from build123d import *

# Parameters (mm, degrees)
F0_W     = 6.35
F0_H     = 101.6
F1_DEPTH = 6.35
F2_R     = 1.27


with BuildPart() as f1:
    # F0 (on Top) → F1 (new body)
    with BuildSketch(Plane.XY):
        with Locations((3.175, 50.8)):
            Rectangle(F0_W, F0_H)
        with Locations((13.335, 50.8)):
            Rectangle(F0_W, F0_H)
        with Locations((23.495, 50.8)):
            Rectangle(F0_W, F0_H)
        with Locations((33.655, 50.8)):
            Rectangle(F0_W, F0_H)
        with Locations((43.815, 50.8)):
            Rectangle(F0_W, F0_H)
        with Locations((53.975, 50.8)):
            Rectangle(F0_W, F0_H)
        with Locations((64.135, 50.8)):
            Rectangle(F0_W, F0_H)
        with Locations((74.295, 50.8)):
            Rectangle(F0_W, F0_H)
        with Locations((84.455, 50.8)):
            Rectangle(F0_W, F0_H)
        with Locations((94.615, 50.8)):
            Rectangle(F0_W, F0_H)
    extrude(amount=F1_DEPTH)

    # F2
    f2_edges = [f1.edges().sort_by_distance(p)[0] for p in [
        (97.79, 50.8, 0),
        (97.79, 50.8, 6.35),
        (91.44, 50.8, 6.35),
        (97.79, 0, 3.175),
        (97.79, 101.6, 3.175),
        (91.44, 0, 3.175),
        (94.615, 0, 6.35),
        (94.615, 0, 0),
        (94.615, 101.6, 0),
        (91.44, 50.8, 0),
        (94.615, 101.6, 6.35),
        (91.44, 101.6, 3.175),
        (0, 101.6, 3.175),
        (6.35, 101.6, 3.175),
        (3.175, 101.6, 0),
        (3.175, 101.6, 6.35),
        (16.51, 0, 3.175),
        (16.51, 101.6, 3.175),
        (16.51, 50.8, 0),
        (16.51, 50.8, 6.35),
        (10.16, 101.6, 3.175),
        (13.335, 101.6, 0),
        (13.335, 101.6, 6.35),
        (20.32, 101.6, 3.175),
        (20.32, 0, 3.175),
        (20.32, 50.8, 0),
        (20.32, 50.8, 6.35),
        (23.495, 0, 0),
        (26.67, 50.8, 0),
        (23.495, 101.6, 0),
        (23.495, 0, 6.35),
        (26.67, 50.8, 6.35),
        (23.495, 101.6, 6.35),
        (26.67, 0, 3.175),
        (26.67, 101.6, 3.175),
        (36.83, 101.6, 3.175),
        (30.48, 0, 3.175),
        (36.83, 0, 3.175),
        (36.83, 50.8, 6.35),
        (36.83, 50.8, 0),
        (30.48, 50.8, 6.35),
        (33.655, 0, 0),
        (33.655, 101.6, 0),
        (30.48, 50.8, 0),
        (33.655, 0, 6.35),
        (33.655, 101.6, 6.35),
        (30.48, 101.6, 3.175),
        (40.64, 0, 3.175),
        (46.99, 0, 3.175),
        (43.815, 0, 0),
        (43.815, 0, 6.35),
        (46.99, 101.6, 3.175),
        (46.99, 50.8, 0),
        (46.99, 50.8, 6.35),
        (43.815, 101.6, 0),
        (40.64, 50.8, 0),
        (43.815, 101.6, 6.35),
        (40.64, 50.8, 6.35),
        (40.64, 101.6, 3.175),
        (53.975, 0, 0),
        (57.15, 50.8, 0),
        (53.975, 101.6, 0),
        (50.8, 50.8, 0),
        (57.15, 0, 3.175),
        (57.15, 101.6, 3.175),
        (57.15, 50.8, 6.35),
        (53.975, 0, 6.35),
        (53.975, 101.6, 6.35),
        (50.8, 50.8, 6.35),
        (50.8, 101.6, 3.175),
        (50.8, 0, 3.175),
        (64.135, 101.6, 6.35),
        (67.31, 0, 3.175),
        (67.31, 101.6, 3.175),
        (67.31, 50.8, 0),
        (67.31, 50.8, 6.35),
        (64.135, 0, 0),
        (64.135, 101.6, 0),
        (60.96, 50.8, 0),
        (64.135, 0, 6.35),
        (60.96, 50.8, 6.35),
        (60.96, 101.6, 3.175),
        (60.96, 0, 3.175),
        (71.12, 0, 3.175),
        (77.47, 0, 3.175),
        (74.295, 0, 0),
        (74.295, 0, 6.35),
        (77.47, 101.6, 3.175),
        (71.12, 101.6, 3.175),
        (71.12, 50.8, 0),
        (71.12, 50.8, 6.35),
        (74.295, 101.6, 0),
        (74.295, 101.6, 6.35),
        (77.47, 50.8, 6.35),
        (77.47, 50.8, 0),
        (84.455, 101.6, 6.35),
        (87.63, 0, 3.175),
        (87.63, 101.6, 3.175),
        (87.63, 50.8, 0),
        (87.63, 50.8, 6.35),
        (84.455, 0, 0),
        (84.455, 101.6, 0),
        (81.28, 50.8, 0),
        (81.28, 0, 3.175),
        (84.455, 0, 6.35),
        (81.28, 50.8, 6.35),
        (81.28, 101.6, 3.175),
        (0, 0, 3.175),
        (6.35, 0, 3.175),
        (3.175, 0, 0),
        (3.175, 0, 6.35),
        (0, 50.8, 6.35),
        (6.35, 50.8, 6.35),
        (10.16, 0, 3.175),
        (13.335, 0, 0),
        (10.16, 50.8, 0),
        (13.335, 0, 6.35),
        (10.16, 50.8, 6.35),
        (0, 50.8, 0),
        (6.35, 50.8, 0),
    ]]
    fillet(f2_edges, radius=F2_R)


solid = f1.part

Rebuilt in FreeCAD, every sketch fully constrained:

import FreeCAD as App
import Part
import Sketcher
Q = App.Units.Quantity

doc = App.newDocument("Part")
body = doc.addObject("PartDesign::Body", "Body")
body.AllowCompound = True

sketch1 = body.newObject("Sketcher::SketchObject", "Sketch")
sketch1.AttachmentSupport = (doc.getObject("XY_Plane"), [""])
sketch1.MapMode = "FlatFace"
sketch1.addGeometry([
    Part.LineSegment(App.Vector(0, 101.6, 0), App.Vector(0, 0, 0)),
    Part.LineSegment(App.Vector(0, 0, 0), App.Vector(6.35, 0, 0)),
    Part.LineSegment(App.Vector(6.35, 0, 0), App.Vector(6.35, 101.6, 0)),
    Part.LineSegment(App.Vector(6.35, 101.6, 0), App.Vector(0, 101.6, 0)),
    Part.LineSegment(App.Vector(10.16, 101.6, 0), App.Vector(10.16, 0, 0)),
    Part.LineSegment(App.Vector(10.16, 0, 0), App.Vector(16.51, 0, 0)),
    Part.LineSegment(App.Vector(16.51, 0, 0), App.Vector(16.51, 101.6, 0)),
    Part.LineSegment(App.Vector(16.51, 101.6, 0), App.Vector(10.16, 101.6, 0)),
    Part.LineSegment(App.Vector(20.32, 101.6, 0), App.Vector(20.32, 0, 0)),
    Part.LineSegment(App.Vector(20.32, 0, 0), App.Vector(26.67, 0, 0)),
    Part.LineSegment(App.Vector(26.67, 0, 0), App.Vector(26.67, 101.6, 0)),
    Part.LineSegment(App.Vector(26.67, 101.6, 0), App.Vector(20.32, 101.6, 0)),
    Part.LineSegment(App.Vector(30.48, 101.6, 0), App.Vector(30.48, 0, 0)),
    Part.LineSegment(App.Vector(30.48, 0, 0), App.Vector(36.83, 0, 0)),
    Part.LineSegment(App.Vector(36.83, 0, 0), App.Vector(36.83, 101.6, 0)),
    Part.LineSegment(App.Vector(36.83, 101.6, 0), App.Vector(30.48, 101.6, 0)),
    Part.LineSegment(App.Vector(40.64, 101.6, 0), App.Vector(40.64, 0, 0)),
    Part.LineSegment(App.Vector(40.64, 0, 0), App.Vector(46.99, 0, 0)),
    Part.LineSegment(App.Vector(46.99, 0, 0), App.Vector(46.99, 101.6, 0)),
    Part.LineSegment(App.Vector(46.99, 101.6, 0), App.Vector(40.64, 101.6, 0)),
    Part.LineSegment(App.Vector(50.8, 101.6, 0), App.Vector(50.8, 0, 0)),
    Part.LineSegment(App.Vector(50.8, 0, 0), App.Vector(57.15, 0, 0)),
    Part.LineSegment(App.Vector(57.15, 0, 0), App.Vector(57.15, 101.6, 0)),
    Part.LineSegment(App.Vector(57.15, 101.6, 0), App.Vector(50.8, 101.6, 0)),
    Part.LineSegment(App.Vector(60.96, 101.6, 0), App.Vector(60.96, 0, 0)),
    Part.LineSegment(App.Vector(60.96, 0, 0), App.Vector(67.31, 0, 0)),
    Part.LineSegment(App.Vector(67.31, 0, 0), App.Vector(67.31, 101.6, 0)),
    Part.LineSegment(App.Vector(67.31, 101.6, 0), App.Vector(60.96, 101.6, 0)),
    Part.LineSegment(App.Vector(71.12, 101.6, 0), App.Vector(71.12, 0, 0)),
    Part.LineSegment(App.Vector(71.12, 0, 0), App.Vector(77.47, 0, 0)),
    Part.LineSegment(App.Vector(77.47, 0, 0), App.Vector(77.47, 101.6, 0)),
    Part.LineSegment(App.Vector(77.47, 101.6, 0), App.Vector(71.12, 101.6, 0)),
    Part.LineSegment(App.Vector(81.28, 101.6, 0), App.Vector(81.28, 0, 0)),
    Part.LineSegment(App.Vector(81.28, 0, 0), App.Vector(87.63, 0, 0)),
    Part.LineSegment(App.Vector(87.63, 0, 0), App.Vector(87.63, 101.6, 0)),
    Part.LineSegment(App.Vector(87.63, 101.6, 0), App.Vector(81.28, 101.6, 0)),
    Part.LineSegment(App.Vector(91.44, 101.6, 0), App.Vector(91.44, 0, 0)),
    Part.LineSegment(App.Vector(91.44, 0, 0), App.Vector(97.79, 0, 0)),
    Part.LineSegment(App.Vector(97.79, 0, 0), App.Vector(97.79, 101.6, 0)),
    Part.LineSegment(App.Vector(97.79, 101.6, 0), App.Vector(91.44, 101.6, 0)),
], False)
sketch1.addConstraint([
    Sketcher.Constraint("Coincident", 0, 2, 1, 1),
    Sketcher.Constraint("Coincident", 1, 2, 2, 1),
    Sketcher.Constraint("Coincident", 2, 2, 3, 1),
    Sketcher.Constraint("Coincident", 3, 2, 0, 1),
    Sketcher.Constraint("Coincident", 4, 2, 5, 1),
    Sketcher.Constraint("Coincident", 5, 2, 6, 1),
    Sketcher.Constraint("Coincident", 6, 2, 7, 1),
    Sketcher.Constraint("Coincident", 7, 2, 4, 1),
    Sketcher.Constraint("Coincident", 8, 2, 9, 1),
    Sketcher.Constraint("Coincident", 9, 2, 10, 1),
    Sketcher.Constraint("Coincident", 10, 2, 11, 1),
    Sketcher.Constraint("Coincident", 11, 2, 8, 1),
    Sketcher.Constraint("Coincident", 12, 2, 13, 1),
    Sketcher.Constraint("Coincident", 13, 2, 14, 1),
    Sketcher.Constraint("Coincident", 14, 2, 15, 1),
    Sketcher.Constraint("Coincident", 15, 2, 12, 1),
    Sketcher.Constraint("Coincident", 16, 2, 17, 1),
    Sketcher.Constraint("Coincident", 17, 2, 18, 1),
    Sketcher.Constraint("Coincident", 18, 2, 19, 1),
    Sketcher.Constraint("Coincident", 19, 2, 16, 1),
    Sketcher.Constraint("Coincident", 20, 2, 21, 1),
    Sketcher.Constraint("Coincident", 21, 2, 22, 1),
    Sketcher.Constraint("Coincident", 22, 2, 23, 1),
    Sketcher.Constraint("Coincident", 23, 2, 20, 1),
    Sketcher.Constraint("Coincident", 24, 2, 25, 1),
    Sketcher.Constraint("Coincident", 25, 2, 26, 1),
    Sketcher.Constraint("Coincident", 26, 2, 27, 1),
    Sketcher.Constraint("Coincident", 27, 2, 24, 1),
    Sketcher.Constraint("Coincident", 28, 2, 29, 1),
    Sketcher.Constraint("Coincident", 29, 2, 30, 1),
    Sketcher.Constraint("Coincident", 30, 2, 31, 1),
    Sketcher.Constraint("Coincident", 31, 2, 28, 1),
    Sketcher.Constraint("Coincident", 32, 2, 33, 1),
    Sketcher.Constraint("Coincident", 33, 2, 34, 1),
    Sketcher.Constraint("Coincident", 34, 2, 35, 1),
    Sketcher.Constraint("Coincident", 35, 2, 32, 1),
    Sketcher.Constraint("Coincident", 36, 2, 37, 1),
    Sketcher.Constraint("Coincident", 37, 2, 38, 1),
    Sketcher.Constraint("Coincident", 38, 2, 39, 1),
    Sketcher.Constraint("Coincident", 39, 2, 36, 1),
    Sketcher.Constraint("Vertical", 0),
    Sketcher.Constraint("Horizontal", 1),
    Sketcher.Constraint("Vertical", 2),
    Sketcher.Constraint("Horizontal", 3),
    Sketcher.Constraint("Vertical", 4),
    Sketcher.Constraint("Horizontal", 5),
    Sketcher.Constraint("Vertical", 6),
    Sketcher.Constraint("Horizontal", 7),
    Sketcher.Constraint("Vertical", 8),
    Sketcher.Constraint("Horizontal", 9),
    Sketcher.Constraint("Vertical", 10),
    Sketcher.Constraint("Horizontal", 11),
    Sketcher.Constraint("Vertical", 12),
    Sketcher.Constraint("Horizontal", 13),
    Sketcher.Constraint("Vertical", 14),
    Sketcher.Constraint("Horizontal", 15),
    Sketcher.Constraint("Vertical", 16),
    Sketcher.Constraint("Horizontal", 17),
    Sketcher.Constraint("Vertical", 18),
    Sketcher.Constraint("Horizontal", 19),
    Sketcher.Constraint("Vertical", 20),
    Sketcher.Constraint("Horizontal", 21),
    Sketcher.Constraint("Vertical", 22),
    Sketcher.Constraint("Horizontal", 23),
    Sketcher.Constraint("Vertical", 24),
    Sketcher.Constraint("Horizontal", 25),
    Sketcher.Constraint("Vertical", 26),
    Sketcher.Constraint("Horizontal", 27),
    Sketcher.Constraint("Vertical", 28),
    Sketcher.Constraint("Horizontal", 29),
    Sketcher.Constraint("Vertical", 30),
    Sketcher.Constraint("Horizontal", 31),
    Sketcher.Constraint("Vertical", 32),
    Sketcher.Constraint("Horizontal", 33),
    Sketcher.Constraint("Vertical", 34),
    Sketcher.Constraint("Horizontal", 35),
    Sketcher.Constraint("Vertical", 36),
    Sketcher.Constraint("Horizontal", 37),
    Sketcher.Constraint("Vertical", 38),
    Sketcher.Constraint("Horizontal", 39),
    Sketcher.Constraint("Coincident", 0, 2, -1, 1),
    Sketcher.Constraint("PointOnObject", 4, 2, -1),
    Sketcher.Constraint("PointOnObject", 8, 2, -1),
    Sketcher.Constraint("PointOnObject", 12, 2, -1),
    Sketcher.Constraint("PointOnObject", 16, 2, -1),
    Sketcher.Constraint("PointOnObject", 20, 2, -1),
    Sketcher.Constraint("PointOnObject", 24, 2, -1),
    Sketcher.Constraint("PointOnObject", 28, 2, -1),
    Sketcher.Constraint("PointOnObject", 32, 2, -1),
    Sketcher.Constraint("PointOnObject", 36, 2, -1),
    Sketcher.Constraint("Horizontal", 3, 2, 6, 2),
    Sketcher.Constraint("Horizontal", 7, 2, 10, 2),
    Sketcher.Constraint("Horizontal", 11, 2, 14, 2),
    Sketcher.Constraint("Horizontal", 15, 2, 18, 2),
    Sketcher.Constraint("Horizontal", 19, 2, 22, 2),
    Sketcher.Constraint("Horizontal", 23, 2, 26, 2),
    Sketcher.Constraint("Horizontal", 27, 2, 30, 2),
    Sketcher.Constraint("Horizontal", 31, 2, 34, 2),
    Sketcher.Constraint("Horizontal", 35, 2, 38, 2),
    Sketcher.Constraint("Equal", 3, 5),
    Sketcher.Constraint("Equal", 7, 9),
    Sketcher.Constraint("Equal", 11, 13),
    Sketcher.Constraint("Equal", 15, 17),
    Sketcher.Constraint("Equal", 19, 21),
    Sketcher.Constraint("Equal", 23, 25),
    Sketcher.Constraint("Equal", 27, 29),
    Sketcher.Constraint("Equal", 31, 33),
    Sketcher.Constraint("Equal", 35, 37),
    Sketcher.Constraint("DistanceY", 0, 2, 0, 1, Q("4 in")),
    Sketcher.Constraint("DistanceX", -1, 1, 20, 2, Q("2 in")),
    Sketcher.Constraint("DistanceX", 1, 1, 1, 2, Q("0.25 in")),
    Sketcher.Constraint("DistanceX", -1, 1, 4, 2, Q("0.4 in")),
    Sketcher.Constraint("DistanceX", -1, 1, 8, 2, Q("0.8 in")),
    Sketcher.Constraint("DistanceX", -1, 1, 12, 2, Q("1.2 in")),
    Sketcher.Constraint("DistanceX", -1, 1, 16, 2, Q("1.6 in")),
    Sketcher.Constraint("DistanceX", -1, 1, 24, 2, Q("2.4 in")),
    Sketcher.Constraint("DistanceX", -1, 1, 28, 2, Q("2.8 in")),
    Sketcher.Constraint("DistanceX", -1, 1, 32, 2, Q("3.2 in")),
    Sketcher.Constraint("DistanceX", -1, 1, 36, 2, Q("3.6 in")),
])
pad1 = body.newObject("PartDesign::Pad", "Pad")
pad1.Profile = sketch1
pad1.Length = Q("0.25 in")
doc.recompute()

fillet = body.newObject("PartDesign::Fillet", "Fillet")
fillet.Base = (pad1, ["Edge1"])
fillet.UseAllEdges = True
fillet.Radius = Q("0.05 in")

doc.recompute()
